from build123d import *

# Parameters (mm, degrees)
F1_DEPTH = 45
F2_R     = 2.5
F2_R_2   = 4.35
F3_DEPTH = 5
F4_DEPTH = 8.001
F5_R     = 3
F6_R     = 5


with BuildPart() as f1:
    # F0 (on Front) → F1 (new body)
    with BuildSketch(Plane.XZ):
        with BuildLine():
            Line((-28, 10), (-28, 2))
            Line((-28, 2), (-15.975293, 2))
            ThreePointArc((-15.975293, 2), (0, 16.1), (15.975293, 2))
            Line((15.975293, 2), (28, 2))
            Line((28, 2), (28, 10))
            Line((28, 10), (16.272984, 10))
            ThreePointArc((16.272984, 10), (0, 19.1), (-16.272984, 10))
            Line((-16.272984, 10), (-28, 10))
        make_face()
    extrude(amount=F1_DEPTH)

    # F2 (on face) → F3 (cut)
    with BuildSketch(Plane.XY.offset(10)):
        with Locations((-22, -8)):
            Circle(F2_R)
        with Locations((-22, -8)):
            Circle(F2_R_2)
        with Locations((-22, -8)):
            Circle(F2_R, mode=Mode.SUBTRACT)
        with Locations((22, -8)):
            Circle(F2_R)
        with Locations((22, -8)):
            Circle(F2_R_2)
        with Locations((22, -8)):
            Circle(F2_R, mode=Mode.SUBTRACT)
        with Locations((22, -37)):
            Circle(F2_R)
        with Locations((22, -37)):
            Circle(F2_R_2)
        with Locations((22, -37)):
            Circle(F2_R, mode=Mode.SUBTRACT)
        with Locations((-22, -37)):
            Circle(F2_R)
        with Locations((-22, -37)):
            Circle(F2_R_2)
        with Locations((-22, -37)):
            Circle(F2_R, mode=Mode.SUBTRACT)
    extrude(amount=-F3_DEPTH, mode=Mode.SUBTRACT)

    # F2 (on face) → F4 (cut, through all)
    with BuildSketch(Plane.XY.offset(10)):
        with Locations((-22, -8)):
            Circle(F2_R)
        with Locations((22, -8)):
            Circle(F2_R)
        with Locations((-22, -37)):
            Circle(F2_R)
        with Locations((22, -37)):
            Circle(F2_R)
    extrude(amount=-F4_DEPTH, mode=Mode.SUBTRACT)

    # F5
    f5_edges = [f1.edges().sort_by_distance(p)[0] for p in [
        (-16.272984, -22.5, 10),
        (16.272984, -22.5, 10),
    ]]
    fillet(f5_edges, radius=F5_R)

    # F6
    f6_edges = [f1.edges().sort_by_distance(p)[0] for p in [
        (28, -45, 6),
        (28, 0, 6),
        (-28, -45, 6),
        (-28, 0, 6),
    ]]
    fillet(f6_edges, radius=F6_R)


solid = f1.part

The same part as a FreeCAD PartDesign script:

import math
import FreeCAD as App
import Part
import Sketcher

V = App.Vector
Q = App.Units.Quantity


def edges_at(feature, points):
    """Names of the edges that pass closest to the given points."""
    edges = feature.Shape.Edges
    near = lambda p: min(range(len(edges)), key=lambda i: edges[i].distToShape(Part.Vertex(*p))[0])
    return sorted({f"Edge{near(p) + 1}" for p in points})

doc = App.newDocument("Part")
body = doc.addObject("PartDesign::Body", "Body")

# Sketch on XZ plane
sketch1 = doc.addObject("Sketcher::SketchObject", "Sketch")
body.addObject(sketch1)
sketch1.AttachmentSupport = (doc.XZ_Plane, [""])
sketch1.MapMode = "FlatFace"
sketch1.addGeometry(Part.LineSegment(V(-28, 10, 0), V(-28, 2, 0)), False)
sketch1.addGeometry(Part.LineSegment(V(-28, 2, 0), V(-16, 2, 0)), False)
sketch1.addGeometry(Part.ArcOfCircle(Part.Circle(V(0, 0, 0), V(0, 0, 1), 16), math.radians(7), math.radians(173)), False)
sketch1.addGeometry(Part.LineSegment(V(16, 2, 0), V(28, 2, 0)), False)
sketch1.addGeometry(Part.LineSegment(V(28, 2, 0), V(28, 10, 0)), False)
sketch1.addGeometry(Part.LineSegment(V(28, 10, 0), V(16, 10, 0)), False)
sketch1.addGeometry(Part.ArcOfCircle(Part.Circle(V(0, 0, 0), V(0, 0, 1), 19), math.radians(32), math.radians(148)), False)
sketch1.addGeometry(Part.LineSegment(V(-16, 10, 0), V(-28, 10, 0)), False)
sketch1.addConstraint(Sketcher.Constraint("Coincident", 0, 2, 1, 1))
sketch1.addConstraint(Sketcher.Constraint("Coincident", 1, 2, 2, 2))
sketch1.addConstraint(Sketcher.Constraint("Coincident", 2, 1, 3, 1))
sketch1.addConstraint(Sketcher.Constraint("Coincident", 3, 2, 4, 1))
sketch1.addConstraint(Sketcher.Constraint("Coincident", 4, 2, 5, 1))
sketch1.addConstraint(Sketcher.Constraint("Coincident", 5, 2, 6, 1))
sketch1.addConstraint(Sketcher.Constraint("Coincident", 6, 2, 7, 1))
sketch1.addConstraint(Sketcher.Constraint("Coincident", 7, 2, 0, 1))
sketch1.addConstraint(Sketcher.Constraint("Vertical", 0))
sketch1.addConstraint(Sketcher.Constraint("Horizontal", 1))
sketch1.addConstraint(Sketcher.Constraint("Horizontal", 3))
sketch1.addConstraint(Sketcher.Constraint("Vertical", 4))
sketch1.addConstraint(Sketcher.Constraint("Horizontal", 5))
sketch1.addConstraint(Sketcher.Constraint("Horizontal", 7))
sketch1.addConstraint(Sketcher.Constraint("Coincident", 2, 3, -1, 1))
sketch1.addConstraint(Sketcher.Constraint("Coincident", 6, 3, -1, 1))
sketch1.addConstraint(Sketcher.Constraint("Symmetric", 0, 2, 3, 2, -2))
sketch1.addConstraint(Sketcher.Constraint("Horizontal", 5, 2, 6, 2))
sketch1.addConstraint(Sketcher.Constraint("Radius", 2, Q("16.1 mm")))
sketch1.addConstraint(Sketcher.Constraint("Radius", 6, Q("19.1 mm")))
sketch1.addConstraint(Sketcher.Constraint("DistanceY", 0, 2, 0, 1, Q("8 mm")))
sketch1.addConstraint(Sketcher.Constraint("DistanceX", 0, 2, -1, 1, Q("28 mm")))
sketch1.addConstraint(Sketcher.Constraint("DistanceY", -1, 1, 0, 2, Q("2 mm")))
pad1 = doc.addObject("PartDesign::Pad", "Pad")
body.addObject(pad1)
pad1.Profile = sketch1
pad1.Length = 45

# Sketch on XY plane
sketch2 = doc.addObject("Sketcher::SketchObject", "Sketch001")
body.addObject(sketch2)
sketch2.AttachmentSupport = (doc.XY_Plane, [""])
sketch2.MapMode = "FlatFace"
sketch2.AttachmentOffset = App.Placement(V(0, 0, 10), App.Rotation())
sketch2.addGeometry(Part.Circle(V(-22, -8, 0), V(0, 0, 1), 4.3), False)
sketch2.addGeometry(Part.Circle(V(-22, -8, 0), V(0, 0, 1), 2.5), False)
sketch2.addGeometry(Part.Circle(V(22, -8, 0), V(0, 0, 1), 4.3), False)
sketch2.addGeometry(Part.Circle(V(22, -8, 0), V(0, 0, 1), 2.5), False)
sketch2.addGeometry(Part.Circle(V(22, -37, 0), V(0, 0, 1), 4.3), False)
sketch2.addGeometry(Part.Circle(V(22, -37, 0), V(0, 0, 1), 2.5), False)
sketch2.addGeometry(Part.Circle(V(-22, -37, 0), V(0, 0, 1), 4.3), False)
sketch2.addGeometry(Part.Circle(V(-22, -37, 0), V(0, 0, 1), 2.5), False)
sketch2.addConstraint(Sketcher.Constraint("Coincident", 1, 3, 0, 3))
sketch2.addConstraint(Sketcher.Constraint("Coincident", 3, 3, 2, 3))
sketch2.addConstraint(Sketcher.Constraint("Coincident", 5, 3, 4, 3))
sketch2.addConstraint(Sketcher.Constraint("Coincident", 7, 3, 6, 3))
sketch2.addConstraint(Sketcher.Constraint("Equal", 0, 2))
sketch2.addConstraint(Sketcher.Constraint("Equal", 1, 3))
sketch2.addConstraint(Sketcher.Constraint("Equal", 2, 4))
sketch2.addConstraint(Sketcher.Constraint("Equal", 3, 5))
sketch2.addConstraint(Sketcher.Constraint("Equal", 4, 6))
sketch2.addConstraint(Sketcher.Constraint("Equal", 5, 7))
sketch2.addConstraint(Sketcher.Constraint("Symmetric", 0, 3, 2, 3, -2))
sketch2.addConstraint(Sketcher.Constraint("Symmetric", 4, 3, 6, 3, -2))
sketch2.addConstraint(Sketcher.Constraint("Vertical", 3, 3, 4, 3))
sketch2.addConstraint(Sketcher.Constraint("Diameter", 1, Q("5 mm")))
sketch2.addConstraint(Sketcher.Constraint("Diameter", 0, Q("8.7 mm")))
sketch2.addConstraint(Sketcher.Constraint("DistanceX", 0, 3, -1, 1, Q("22 mm")))
sketch2.addConstraint(Sketcher.Constraint("DistanceY", 0, 3, -1, 1, Q("8 mm")))
sketch2.addConstraint(Sketcher.Constraint("DistanceY", 4, 3, -1, 1, Q("37 mm")))
pocket1 = doc.addObject("PartDesign::Pocket", "Pocket")
body.addObject(pocket1)
pocket1.Profile = sketch2
pocket1.Length = 5

# Sketch on XY plane
sketch3 = doc.addObject("Sketcher::SketchObject", "Sketch002")
body.addObject(sketch3)
sketch3.AttachmentSupport = (doc.XY_Plane, [""])
sketch3.MapMode = "FlatFace"
sketch3.AttachmentOffset = App.Placement(V(0, 0, 10), App.Rotation())
sketch3.addGeometry(Part.Circle(V(-22, -8, 0), V(0, 0, 1), 2.5), False)
sketch3.addGeometry(Part.Circle(V(22, -8, 0), V(0, 0, 1), 2.5), False)
sketch3.addGeometry(Part.Circle(V(-22, -37, 0), V(0, 0, 1), 2.5), False)
sketch3.addGeometry(Part.Circle(V(22, -37, 0), V(0, 0, 1), 2.5), False)
sketch3.addConstraint(Sketcher.Constraint("Equal", 0, 1))
sketch3.addConstraint(Sketcher.Constraint("Equal", 1, 2))
sketch3.addConstraint(Sketcher.Constraint("Equal", 2, 3))
sketch3.addConstraint(Sketcher.Constraint("Symmetric", 0, 3, 1, 3, -2))
sketch3.addConstraint(Sketcher.Constraint("Symmetric", 2, 3, 3, 3, -2))
sketch3.addConstraint(Sketcher.Constraint("Vertical", 0, 3, 2, 3))
sketch3.addConstraint(Sketcher.Constraint("Diameter", 0, Q("5 mm")))
sketch3.addConstraint(Sketcher.Constraint("DistanceX", 0, 3, -1, 1, Q("22 mm")))
sketch3.addConstraint(Sketcher.Constraint("DistanceY", 0, 3, -1, 1, Q("8 mm")))
sketch3.addConstraint(Sketcher.Constraint("DistanceY", 2, 3, -1, 1, Q("37 mm")))
pocket2 = doc.addObject("PartDesign::Pocket", "Pocket001")
body.addObject(pocket2)
pocket2.Profile = sketch3
pocket2.Type = "ThroughAll"
doc.recompute()

fillet = doc.addObject("PartDesign::Fillet", "Fillet")
body.addObject(fillet)
fillet.Base = (pocket2, edges_at(pocket2, [(-16.273, -22.5, 10), (16.273, -22.5, 10)]))
fillet.Radius = 3
doc.recompute()

fillet2 = doc.addObject("PartDesign::Fillet", "Fillet001")
body.addObject(fillet2)
fillet2.Base = (fillet, edges_at(fillet, [
    (28, -45, 6),
    (28, 0, 6),
    (-28, -45, 6),
    (-28, 0, 6),
]))
fillet2.Radius = 5

doc.recompute()
